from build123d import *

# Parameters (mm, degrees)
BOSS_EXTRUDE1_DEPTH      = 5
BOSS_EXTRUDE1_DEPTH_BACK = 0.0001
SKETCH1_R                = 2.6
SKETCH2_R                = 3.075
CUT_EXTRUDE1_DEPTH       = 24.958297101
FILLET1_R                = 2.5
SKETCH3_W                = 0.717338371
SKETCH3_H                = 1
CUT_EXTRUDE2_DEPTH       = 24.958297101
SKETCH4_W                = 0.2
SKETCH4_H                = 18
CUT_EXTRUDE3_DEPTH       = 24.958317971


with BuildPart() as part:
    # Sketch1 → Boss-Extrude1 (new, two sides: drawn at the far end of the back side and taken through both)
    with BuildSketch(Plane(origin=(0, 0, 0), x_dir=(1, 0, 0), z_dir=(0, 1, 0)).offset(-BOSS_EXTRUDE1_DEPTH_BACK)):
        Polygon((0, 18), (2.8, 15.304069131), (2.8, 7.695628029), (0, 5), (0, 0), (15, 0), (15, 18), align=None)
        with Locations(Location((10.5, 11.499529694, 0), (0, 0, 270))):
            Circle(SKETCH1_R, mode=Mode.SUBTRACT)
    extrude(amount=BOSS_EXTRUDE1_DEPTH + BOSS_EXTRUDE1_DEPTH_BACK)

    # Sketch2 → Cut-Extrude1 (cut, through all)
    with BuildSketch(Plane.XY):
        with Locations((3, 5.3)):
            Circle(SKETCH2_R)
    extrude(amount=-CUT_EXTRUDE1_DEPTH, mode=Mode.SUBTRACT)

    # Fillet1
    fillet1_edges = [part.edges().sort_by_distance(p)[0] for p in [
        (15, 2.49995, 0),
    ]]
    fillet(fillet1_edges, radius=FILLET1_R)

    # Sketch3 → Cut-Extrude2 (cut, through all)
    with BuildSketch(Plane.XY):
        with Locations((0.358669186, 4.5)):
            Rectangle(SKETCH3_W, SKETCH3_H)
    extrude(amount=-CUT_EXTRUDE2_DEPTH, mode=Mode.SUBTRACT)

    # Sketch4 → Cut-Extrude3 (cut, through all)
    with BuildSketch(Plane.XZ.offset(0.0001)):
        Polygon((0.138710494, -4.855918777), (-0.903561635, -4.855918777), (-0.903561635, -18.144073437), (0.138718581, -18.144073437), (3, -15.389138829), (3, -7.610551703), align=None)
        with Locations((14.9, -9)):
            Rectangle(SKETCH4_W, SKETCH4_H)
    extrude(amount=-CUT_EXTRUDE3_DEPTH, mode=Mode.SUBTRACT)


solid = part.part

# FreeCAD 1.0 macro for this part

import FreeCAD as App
import Part
import Sketcher
from FreeCAD import Vector
Q = App.Units.Quantity


def edges_at(feature, points):
    """Names of the edges that pass closest to the given points."""
    edges = feature.Shape.Edges
    near = lambda p: min(range(len(edges)), key=lambda i: edges[i].distToShape(Part.Vertex(*p))[0])
    return sorted({f"Edge{near(p) + 1}" for p in points})


def add_polygon(sketch, points):
    """Adds a closed chain of lines whose ends are joined by coincident constraints."""
    first, n = sketch.GeometryCount, len(points)
    for a, b in zip(points, points[1:] + points[:1]):
        sketch.addGeometry(Part.LineSegment(App.Vector(*a, 0), App.Vector(*b, 0)), False)
    for i in range(n):
        sketch.addConstraint(Sketcher.Constraint("Coincident", first + i, 2, first + (i + 1) % n, 1))

doc = App.newDocument("Part")
body = doc.addObject("PartDesign::Body", "Body")

# Sketch on XZ plane
sketch1 = body.newObject("Sketcher::SketchObject", "Sketch")
sketch1.AttachmentSupport = (doc.getObject("XZ_Plane"), [""])
sketch1.MapMode = "FlatFace"
add_polygon(sketch1, [(0, -18), (2.8, -15.3), (2.8, -7.7), (0, -5), (0, 0), (15, 0), (15, -18)])  # lines 0-6
sketch1.addGeometry(Part.Circle(Vector(10.5, -11.5, 0), Vector(0, 0, 1), 2.6), False)  # 7
sketch1.addConstraint([
    Sketcher.Constraint("Vertical", 1),
    Sketcher.Constraint("Vertical", 3),
    Sketcher.Constraint("Horizontal", 4),
    Sketcher.Constraint("Vertical", 5),
    Sketcher.Constraint("Horizontal", 6),
    Sketcher.Constraint("Coincident", 3, 2, -1, 1),
    Sketcher.Constraint("PointOnObject", 6, 2, -2),
    Sketcher.Constraint("Diameter", 7, Q("5.2 mm")),
    Sketcher.Constraint("DistanceX", 4, 1, 4, 2, Q("15 mm")),
    Sketcher.Constraint("DistanceY", 3, 1, 3, 2, Q("5 mm")),
    Sketcher.Constraint("DistanceY", 5, 2, 5, 1, Q("18 mm")),
    Sketcher.Constraint("DistanceX", -1, 1, 7, 3, Q("10.5 mm")),
    Sketcher.Constraint("DistanceX", -1, 1, 0, 2, Q("2.8 mm")),
    Sketcher.Constraint("DistanceY", 1, 1, 1, 2, Q("7.608441 mm")),
    Sketcher.Constraint("DistanceY", 7, 3, 1, 2, Q("3.803902 mm")),
    Sketcher.Constraint("DistanceY", 7, 3, -1, 1, Q("11.49953 mm")),
])
pad1 = body.newObject("PartDesign::Pad", "Pad")
pad1.Profile = sketch1
pad1.Type = "TwoLengths"
pad1.Length = 5
pad1.Length2 = 0.0001
pad1.Reversed = True

# Sketch on XY plane
sketch2 = body.newObject("Sketcher::SketchObject", "Sketch001")
sketch2.AttachmentSupport = (doc.getObject("XY_Plane"), [""])
sketch2.MapMode = "FlatFace"
sketch2.addGeometry(Part.Circle(Vector(3, 5.3, 0), Vector(0, 0, 1), 3.1), False)
sketch2.addConstraint([
    Sketcher.Constraint("Diameter", 0, Q("6.15 mm")),
    Sketcher.Constraint("DistanceX", -1, 1, 0, 3, Q("3 mm")),
    Sketcher.Constraint("DistanceY", -1, 1, 0, 3, Q("5.3 mm")),
])
pocket1 = body.newObject("PartDesign::Pocket", "Pocket")
pocket1.Profile = sketch2
pocket1.Type = "ThroughAll"
doc.recompute()

fillet = body.newObject("PartDesign::Fillet", "Fillet")
fillet.Base = (pocket1, edges_at(pocket1, [(15, 2.5, 0)]))
fillet.Radius = 2.5

# Sketch on XY plane
sketch3 = body.newObject("Sketcher::SketchObject", "Sketch002")
sketch3.AttachmentSupport = (doc.getObject("XY_Plane"), [""])
sketch3.MapMode = "FlatFace"
add_polygon(sketch3, [(0, 5), (0, 4), (0.7, 4), (0.7, 5)])  # lines 0-3
sketch3.addConstraint([
    Sketcher.Constraint("Vertical", 0),
    Sketcher.Constraint("Horizontal", 1),
    Sketcher.Constraint("Vertical", 2),
    Sketcher.Constraint("Horizontal", 3),
    Sketcher.Constraint("PointOnObject", 0, 2, -2),
    Sketcher.Constraint("DistanceY", 0, 2, 0, 1, Q("1 mm")),
    Sketcher.Constraint("DistanceY", -1, 1, 0, 2, Q("4 mm")),
    Sketcher.Constraint("DistanceX", 1, 1, 1, 2, Q("0.717338 mm")),
])
pocket2 = body.newObject("PartDesign::Pocket", "Pocket001")
pocket2.Profile = sketch3
pocket2.Type = "ThroughAll"

# Sketch on XZ plane
sketch4 = body.newObject("Sketcher::SketchObject", "Sketch003")
sketch4.AttachmentSupport = (doc.getObject("XZ_Plane"), [""])
sketch4.MapMode = "FlatFace"
sketch4.AttachmentOffset = App.Placement(Vector(0, 0, 0.0001), App.Rotation())
add_polygon(sketch4, [(0.14, -4.86), (-0.9, -4.86), (-0.9, -18.14), (0.14, -18.14), (3, -15.39), (3, -7.61)])  # lines 0-5
add_polygon(sketch4, [(14.8, 0), (14.8, -18), (15, -18), (15, 0)])  # lines 6-9
sketch4.addConstraint([
    Sketcher.Constraint("Horizontal", 0),
    Sketcher.Constraint("Vertical", 1),
    Sketcher.Constraint("Horizontal", 2),
    Sketcher.Constraint("Vertical", 4),
    Sketcher.Constraint("Vertical", 6),
    Sketcher.Constraint("Horizontal", 7),
    Sketcher.Constraint("Vertical", 8),
    Sketcher.Constraint("Horizontal", 9),
    Sketcher.Constraint("PointOnObject", 8, 2, -1),
    Sketcher.Constraint("DistanceY", 6, 2, 6, 1, Q("18 mm")),
    Sketcher.Constraint("DistanceX", 7, 1, 7, 2, Q("0.2 mm")),
    Sketcher.Constraint("DistanceX", -1, 1, 3, 2, Q("3 mm")),
    Sketcher.Constraint("DistanceX", -1, 1, 7, 2, Q("15 mm")),
    Sketcher.Constraint("DistanceX", 2, 1, 2, 2, Q("1.04228 mm")),
    Sketcher.Constraint("DistanceX", 0, 2, 0, 1, Q("1.042272 mm")),
    Sketcher.Constraint("DistanceY", 1, 2, 1, 1, Q("13.288155 mm")),
    Sketcher.Constraint("DistanceY", 4, 1, 4, 2, Q("7.778587 mm")),
    Sketcher.Constraint("DistanceX", 0, 2, -1, 1, Q("0.903562 mm")),
    Sketcher.Constraint("DistanceY", 0, 2, -1, 1, Q("4.855919 mm")),
    Sketcher.Constraint("DistanceY", 3, 2, -1, 1, Q("15.389139 mm")),
])
pocket3 = body.newObject("PartDesign::Pocket", "Pocket002")
pocket3.Profile = sketch4
pocket3.Type = "ThroughAll"

doc.recompute()
